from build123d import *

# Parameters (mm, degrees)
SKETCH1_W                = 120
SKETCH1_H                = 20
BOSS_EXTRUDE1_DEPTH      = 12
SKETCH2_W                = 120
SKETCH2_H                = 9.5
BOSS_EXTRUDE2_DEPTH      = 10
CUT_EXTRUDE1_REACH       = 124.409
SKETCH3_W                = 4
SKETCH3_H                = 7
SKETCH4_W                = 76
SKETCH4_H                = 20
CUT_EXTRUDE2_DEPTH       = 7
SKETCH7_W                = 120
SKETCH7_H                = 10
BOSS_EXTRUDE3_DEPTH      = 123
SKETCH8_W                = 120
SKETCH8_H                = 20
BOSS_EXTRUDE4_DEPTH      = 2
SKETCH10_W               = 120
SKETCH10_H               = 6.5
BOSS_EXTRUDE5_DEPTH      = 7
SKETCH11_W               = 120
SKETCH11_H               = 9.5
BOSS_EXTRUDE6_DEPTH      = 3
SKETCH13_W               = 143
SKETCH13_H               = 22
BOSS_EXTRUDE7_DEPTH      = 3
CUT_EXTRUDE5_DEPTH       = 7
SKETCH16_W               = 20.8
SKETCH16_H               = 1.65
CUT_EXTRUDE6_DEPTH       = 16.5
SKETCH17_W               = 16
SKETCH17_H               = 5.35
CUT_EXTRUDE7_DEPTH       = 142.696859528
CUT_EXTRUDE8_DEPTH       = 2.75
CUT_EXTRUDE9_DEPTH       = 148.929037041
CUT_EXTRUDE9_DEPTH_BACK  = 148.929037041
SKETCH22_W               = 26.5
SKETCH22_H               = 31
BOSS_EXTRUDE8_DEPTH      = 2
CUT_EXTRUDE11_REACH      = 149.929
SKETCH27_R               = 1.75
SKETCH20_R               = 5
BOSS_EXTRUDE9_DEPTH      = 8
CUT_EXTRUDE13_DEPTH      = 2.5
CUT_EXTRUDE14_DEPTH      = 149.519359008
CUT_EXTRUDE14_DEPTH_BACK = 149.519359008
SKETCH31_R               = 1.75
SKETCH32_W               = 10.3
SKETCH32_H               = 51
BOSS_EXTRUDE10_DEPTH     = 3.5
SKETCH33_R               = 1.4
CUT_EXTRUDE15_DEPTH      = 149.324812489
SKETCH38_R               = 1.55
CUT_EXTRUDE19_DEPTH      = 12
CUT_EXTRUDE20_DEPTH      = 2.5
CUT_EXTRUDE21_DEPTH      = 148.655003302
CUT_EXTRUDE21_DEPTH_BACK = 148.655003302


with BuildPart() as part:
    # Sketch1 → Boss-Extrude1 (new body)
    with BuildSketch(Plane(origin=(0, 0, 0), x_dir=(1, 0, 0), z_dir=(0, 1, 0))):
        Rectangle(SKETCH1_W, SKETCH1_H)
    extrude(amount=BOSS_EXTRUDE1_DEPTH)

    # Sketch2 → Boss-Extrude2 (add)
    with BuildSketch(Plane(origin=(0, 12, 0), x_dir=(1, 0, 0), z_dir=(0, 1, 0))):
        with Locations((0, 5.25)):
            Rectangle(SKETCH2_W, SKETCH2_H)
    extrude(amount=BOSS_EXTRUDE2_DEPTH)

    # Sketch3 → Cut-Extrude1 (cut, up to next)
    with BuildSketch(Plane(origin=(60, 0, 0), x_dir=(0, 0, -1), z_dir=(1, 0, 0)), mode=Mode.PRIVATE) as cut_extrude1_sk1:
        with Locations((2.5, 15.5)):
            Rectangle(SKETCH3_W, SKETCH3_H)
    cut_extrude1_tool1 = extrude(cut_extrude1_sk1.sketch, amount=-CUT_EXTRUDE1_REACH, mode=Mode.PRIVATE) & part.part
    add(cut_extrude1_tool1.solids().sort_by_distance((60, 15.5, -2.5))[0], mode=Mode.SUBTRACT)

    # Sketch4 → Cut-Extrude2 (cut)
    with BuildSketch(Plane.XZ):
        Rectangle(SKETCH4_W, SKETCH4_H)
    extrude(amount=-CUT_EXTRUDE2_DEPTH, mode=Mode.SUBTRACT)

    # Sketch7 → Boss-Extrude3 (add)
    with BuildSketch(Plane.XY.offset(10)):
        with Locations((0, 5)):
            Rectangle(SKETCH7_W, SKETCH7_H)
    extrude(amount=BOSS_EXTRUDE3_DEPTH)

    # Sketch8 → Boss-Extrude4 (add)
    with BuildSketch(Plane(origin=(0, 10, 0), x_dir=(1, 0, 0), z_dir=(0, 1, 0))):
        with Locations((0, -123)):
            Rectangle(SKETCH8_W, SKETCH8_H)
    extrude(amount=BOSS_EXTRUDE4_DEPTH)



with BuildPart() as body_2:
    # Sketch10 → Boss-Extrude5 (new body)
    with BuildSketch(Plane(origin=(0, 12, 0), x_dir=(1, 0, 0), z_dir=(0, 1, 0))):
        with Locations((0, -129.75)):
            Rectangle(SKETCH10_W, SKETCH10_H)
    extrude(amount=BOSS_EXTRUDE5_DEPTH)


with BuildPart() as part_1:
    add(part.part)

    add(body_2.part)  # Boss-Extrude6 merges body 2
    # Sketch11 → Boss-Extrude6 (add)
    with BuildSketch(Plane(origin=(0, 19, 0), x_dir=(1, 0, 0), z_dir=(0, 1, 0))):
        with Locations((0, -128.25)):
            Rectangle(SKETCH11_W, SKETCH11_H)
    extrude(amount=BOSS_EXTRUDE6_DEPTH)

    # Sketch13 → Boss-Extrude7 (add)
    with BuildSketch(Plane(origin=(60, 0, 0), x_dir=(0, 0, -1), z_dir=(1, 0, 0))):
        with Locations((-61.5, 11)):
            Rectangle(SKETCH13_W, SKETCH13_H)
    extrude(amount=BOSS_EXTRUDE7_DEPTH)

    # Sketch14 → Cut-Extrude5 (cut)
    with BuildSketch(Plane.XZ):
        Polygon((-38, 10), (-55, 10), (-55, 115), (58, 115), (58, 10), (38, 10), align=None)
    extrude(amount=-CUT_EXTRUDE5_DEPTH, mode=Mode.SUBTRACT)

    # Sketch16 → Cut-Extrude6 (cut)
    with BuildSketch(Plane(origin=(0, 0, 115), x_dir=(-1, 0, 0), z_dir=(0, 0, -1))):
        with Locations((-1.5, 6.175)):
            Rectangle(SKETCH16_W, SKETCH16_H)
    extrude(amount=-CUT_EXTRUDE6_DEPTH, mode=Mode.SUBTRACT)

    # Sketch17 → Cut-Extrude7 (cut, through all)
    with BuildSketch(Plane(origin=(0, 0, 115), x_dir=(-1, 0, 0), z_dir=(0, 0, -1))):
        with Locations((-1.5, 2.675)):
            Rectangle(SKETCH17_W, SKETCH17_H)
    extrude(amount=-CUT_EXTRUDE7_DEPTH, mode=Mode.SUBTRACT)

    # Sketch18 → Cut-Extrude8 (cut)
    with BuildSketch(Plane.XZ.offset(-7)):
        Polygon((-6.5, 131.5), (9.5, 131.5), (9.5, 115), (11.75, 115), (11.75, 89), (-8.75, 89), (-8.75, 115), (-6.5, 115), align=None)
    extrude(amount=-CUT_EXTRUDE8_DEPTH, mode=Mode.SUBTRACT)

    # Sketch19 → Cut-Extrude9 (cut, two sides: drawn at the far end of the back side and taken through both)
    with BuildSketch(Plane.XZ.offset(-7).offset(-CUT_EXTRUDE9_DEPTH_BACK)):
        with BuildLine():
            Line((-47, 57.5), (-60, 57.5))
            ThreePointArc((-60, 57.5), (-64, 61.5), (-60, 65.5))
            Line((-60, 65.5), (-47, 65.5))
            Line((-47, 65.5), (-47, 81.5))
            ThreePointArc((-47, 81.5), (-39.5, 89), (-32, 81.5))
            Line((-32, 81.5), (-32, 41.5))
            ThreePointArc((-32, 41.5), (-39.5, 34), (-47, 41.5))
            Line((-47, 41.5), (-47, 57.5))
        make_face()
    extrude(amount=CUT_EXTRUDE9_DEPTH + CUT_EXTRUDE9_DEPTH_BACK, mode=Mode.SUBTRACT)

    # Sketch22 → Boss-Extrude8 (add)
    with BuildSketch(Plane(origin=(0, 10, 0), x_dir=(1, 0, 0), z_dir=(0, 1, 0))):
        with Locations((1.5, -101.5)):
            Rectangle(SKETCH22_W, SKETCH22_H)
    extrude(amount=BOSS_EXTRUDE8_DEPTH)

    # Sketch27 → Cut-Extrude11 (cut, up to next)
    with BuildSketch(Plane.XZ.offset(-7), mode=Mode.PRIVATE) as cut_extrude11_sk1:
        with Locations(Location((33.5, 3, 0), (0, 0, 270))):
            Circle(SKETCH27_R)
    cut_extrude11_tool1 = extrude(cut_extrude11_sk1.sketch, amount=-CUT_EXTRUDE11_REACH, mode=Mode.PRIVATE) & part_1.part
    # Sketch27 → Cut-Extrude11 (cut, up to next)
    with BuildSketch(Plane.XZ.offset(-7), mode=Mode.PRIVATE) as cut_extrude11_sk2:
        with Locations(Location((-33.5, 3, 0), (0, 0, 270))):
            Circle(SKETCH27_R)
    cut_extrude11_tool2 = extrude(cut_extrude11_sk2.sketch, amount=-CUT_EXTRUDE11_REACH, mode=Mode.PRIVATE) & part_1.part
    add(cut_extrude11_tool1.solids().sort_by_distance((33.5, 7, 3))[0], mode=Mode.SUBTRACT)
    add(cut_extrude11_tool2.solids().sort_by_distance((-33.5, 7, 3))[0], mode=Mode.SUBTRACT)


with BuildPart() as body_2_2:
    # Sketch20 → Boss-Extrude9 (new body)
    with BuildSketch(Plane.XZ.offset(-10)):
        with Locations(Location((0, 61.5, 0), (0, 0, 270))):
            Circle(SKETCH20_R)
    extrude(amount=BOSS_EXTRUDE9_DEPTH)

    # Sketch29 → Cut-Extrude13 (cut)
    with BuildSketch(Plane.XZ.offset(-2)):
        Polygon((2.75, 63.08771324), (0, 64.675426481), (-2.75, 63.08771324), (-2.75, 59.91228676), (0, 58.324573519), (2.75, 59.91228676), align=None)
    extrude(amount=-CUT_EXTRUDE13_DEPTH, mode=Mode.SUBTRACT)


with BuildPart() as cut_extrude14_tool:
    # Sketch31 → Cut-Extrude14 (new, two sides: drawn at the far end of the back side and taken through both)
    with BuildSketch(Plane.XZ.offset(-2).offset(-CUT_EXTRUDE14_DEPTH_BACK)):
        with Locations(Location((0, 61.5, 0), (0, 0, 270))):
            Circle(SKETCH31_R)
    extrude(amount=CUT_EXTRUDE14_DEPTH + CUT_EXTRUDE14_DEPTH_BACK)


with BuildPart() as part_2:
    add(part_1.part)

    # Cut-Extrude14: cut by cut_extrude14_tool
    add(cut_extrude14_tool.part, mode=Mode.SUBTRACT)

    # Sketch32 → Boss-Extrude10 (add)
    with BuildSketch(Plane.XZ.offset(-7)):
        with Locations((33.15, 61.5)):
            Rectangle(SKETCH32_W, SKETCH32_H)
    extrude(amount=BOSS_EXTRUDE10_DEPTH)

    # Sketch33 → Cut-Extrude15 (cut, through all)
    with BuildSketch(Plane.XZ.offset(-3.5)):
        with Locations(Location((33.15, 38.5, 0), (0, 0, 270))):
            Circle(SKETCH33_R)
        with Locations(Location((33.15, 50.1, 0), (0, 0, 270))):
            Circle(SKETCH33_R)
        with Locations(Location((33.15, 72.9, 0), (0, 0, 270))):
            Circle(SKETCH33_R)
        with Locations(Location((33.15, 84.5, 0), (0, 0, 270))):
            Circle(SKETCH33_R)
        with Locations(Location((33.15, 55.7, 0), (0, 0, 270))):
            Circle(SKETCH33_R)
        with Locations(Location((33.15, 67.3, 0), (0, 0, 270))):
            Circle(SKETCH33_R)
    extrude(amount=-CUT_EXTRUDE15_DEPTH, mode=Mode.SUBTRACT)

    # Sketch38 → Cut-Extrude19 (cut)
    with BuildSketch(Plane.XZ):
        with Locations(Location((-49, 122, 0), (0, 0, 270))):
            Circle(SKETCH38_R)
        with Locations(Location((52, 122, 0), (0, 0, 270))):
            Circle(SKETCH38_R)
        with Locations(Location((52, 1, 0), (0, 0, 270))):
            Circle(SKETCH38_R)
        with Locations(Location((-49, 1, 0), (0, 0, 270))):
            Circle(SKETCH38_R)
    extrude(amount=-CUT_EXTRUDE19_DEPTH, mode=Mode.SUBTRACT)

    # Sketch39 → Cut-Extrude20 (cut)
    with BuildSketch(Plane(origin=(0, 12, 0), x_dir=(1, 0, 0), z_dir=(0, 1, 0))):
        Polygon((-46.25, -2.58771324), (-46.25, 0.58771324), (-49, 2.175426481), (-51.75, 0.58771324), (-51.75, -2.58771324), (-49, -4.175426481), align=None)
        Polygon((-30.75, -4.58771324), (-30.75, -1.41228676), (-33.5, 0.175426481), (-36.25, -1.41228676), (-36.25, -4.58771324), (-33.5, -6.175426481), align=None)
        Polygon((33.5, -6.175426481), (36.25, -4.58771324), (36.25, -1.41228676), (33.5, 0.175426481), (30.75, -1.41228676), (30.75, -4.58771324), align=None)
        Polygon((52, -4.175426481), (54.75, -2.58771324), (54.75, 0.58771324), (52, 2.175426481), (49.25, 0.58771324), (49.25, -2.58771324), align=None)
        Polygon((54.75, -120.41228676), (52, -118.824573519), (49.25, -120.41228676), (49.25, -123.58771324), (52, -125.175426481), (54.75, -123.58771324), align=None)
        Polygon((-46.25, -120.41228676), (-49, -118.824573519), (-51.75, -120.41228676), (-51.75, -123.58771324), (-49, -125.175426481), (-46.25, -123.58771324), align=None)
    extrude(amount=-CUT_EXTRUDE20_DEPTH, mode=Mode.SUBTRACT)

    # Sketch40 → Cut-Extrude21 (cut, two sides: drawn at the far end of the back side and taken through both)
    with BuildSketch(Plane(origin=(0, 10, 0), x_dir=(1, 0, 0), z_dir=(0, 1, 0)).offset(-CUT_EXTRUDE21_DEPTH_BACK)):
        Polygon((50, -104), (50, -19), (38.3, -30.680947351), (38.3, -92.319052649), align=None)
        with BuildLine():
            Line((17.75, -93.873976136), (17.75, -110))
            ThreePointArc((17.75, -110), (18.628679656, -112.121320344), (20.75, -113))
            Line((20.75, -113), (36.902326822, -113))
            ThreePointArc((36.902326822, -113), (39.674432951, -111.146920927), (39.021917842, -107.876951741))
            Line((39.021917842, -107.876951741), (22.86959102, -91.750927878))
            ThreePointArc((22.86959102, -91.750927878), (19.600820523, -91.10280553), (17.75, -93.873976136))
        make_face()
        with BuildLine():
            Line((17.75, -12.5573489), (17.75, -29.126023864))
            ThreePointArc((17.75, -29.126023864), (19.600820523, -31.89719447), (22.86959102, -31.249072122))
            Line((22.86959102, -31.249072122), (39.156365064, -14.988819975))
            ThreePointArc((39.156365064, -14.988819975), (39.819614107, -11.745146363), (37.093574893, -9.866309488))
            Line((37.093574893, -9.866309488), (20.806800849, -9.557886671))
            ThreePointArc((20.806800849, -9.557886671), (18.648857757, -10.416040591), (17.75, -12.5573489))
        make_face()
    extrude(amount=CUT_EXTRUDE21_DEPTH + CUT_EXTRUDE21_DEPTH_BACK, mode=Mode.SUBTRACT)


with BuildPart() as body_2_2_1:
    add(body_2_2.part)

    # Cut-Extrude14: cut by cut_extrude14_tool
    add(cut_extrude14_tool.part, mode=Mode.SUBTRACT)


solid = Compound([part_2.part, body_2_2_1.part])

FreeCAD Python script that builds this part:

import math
import FreeCAD as App
import Part
import Sketcher

V = App.Vector
Q = App.Units.Quantity


def add_polygon(sketch, points):
    """Adds a closed chain of lines whose ends are joined by coincident constraints."""
    first, n = sketch.GeometryCount, len(points)
    for a, b in zip(points, points[1:] + points[:1]):
        sketch.addGeometry(Part.LineSegment(App.Vector(*a, 0), App.Vector(*b, 0)), False)
    for i in range(n):
        sketch.addConstraint(Sketcher.Constraint("Coincident", first + i, 2, first + (i + 1) % n, 1))

doc = App.newDocument("Part")
params = doc.addObject("Spreadsheet::Sheet", "Params")
for row, (alias, value) in enumerate([
    ("sketch1_width", "120 mm"),
    ("sketch1_height", "20 mm"),
    ("pad1_length", "12 mm"),
    ("sketch2_width", "120 mm"),
    ("sketch2_height", "9.5 mm"),
    ("pad2_length", "10 mm"),
    ("sketch3_width", "7 mm"),
    ("sketch3_height", "4 mm"),
    ("sketch4_width", "76 mm"),
    ("sketch4_height", "20 mm"),
    ("pocket2_length", "7 mm"),
    ("sketch5_width", "120 mm"),
    ("sketch5_height", "10 mm"),
    ("pad3_length", "123 mm"),
    ("sketch6_width", "120 mm"),
    ("sketch6_height", "20 mm"),
    ("pad4_length", "2 mm"),
    ("sketch7_width", "120 mm"),
    ("sketch7_height", "6.5 mm"),
    ("pad5_length", "7 mm"),
    ("sketch8_width", "120 mm"),
    ("sketch8_height", "9.5 mm"),
    ("pad6_length", "3 mm"),
    ("sketch9_width", "22 mm"),
    ("sketch9_height", "143 mm"),
    ("pad7_length", "3 mm"),
    ("sketch10_width", "113 mm"),
    ("sketch10_height", "105 mm"),
    ("pocket3_length", "7 mm"),
    ("sketch11_width", "20.8 mm"),
    ("sketch11_height", "1.65 mm"),
    ("pocket4_length", "16.5 mm"),
    ("sketch12_width", "16 mm"),
    ("sketch12_height", "5.35 mm"),
    ("sketch13_width", "16 mm"),
    ("sketch13_height", "26 mm"),
    ("sketch13_width2", "20.5 mm"),
    ("sketch13_height2", "16.5 mm"),
    ("pocket6_length", "2.75 mm"),
    ("sketch14_radius", "4 mm"),
    ("sketch14_radius2", "7.5 mm"),
    ("sketch14_width", "13 mm"),
    ("sketch14_height", "16 mm"),
    ("sketch15_height", "31 mm"),
    ("sketch15_width", "26.5 mm"),
    ("pad8_length", "2 mm"),
    ("sketch16_diameter", "3.5 mm"),
    ("sketch17_diameter", "3.5 mm"),
    ("sketch18_diameter", "10 mm"),
    ("pad9_length", "8 mm"),
    ("pocket10_length", "2.5 mm"),
    ("sketch20_diameter", "3.5 mm"),
    ("pad10_length", "149.519359 mm"),
    ("pad10_length2", "149.519359 mm"),
    ("sketch21_height", "51 mm"),
    ("sketch21_width", "10.3 mm"),
    ("pad11_length", "3.5 mm"),
    ("sketch22_diameter", "2.8 mm"),
    ("sketch23_diameter", "3.1 mm"),
    ("pocket12_length", "12 mm"),
    ("pocket13_length", "2.5 mm"),
    ("sketch25_radius", "3 mm"),
    ("sketch25_height", "85 mm"),
], start=1):
    params.set(f"A{row}", alias)
    params.set(f"B{row}", "=" + value)
    params.setAlias(f"B{row}", alias)

body = doc.addObject("PartDesign::Body", "Body")

sketch1 = body.newObject("Sketcher::SketchObject", "Sketch")
sketch1.AttachmentSupport = (doc.getObject("XZ_Plane"), [""])
sketch1.MapMode = "FlatFace"
add_polygon(sketch1, [(-60, -10), (-60, 10), (60, 10), (60, -10)])
sketch1.addConstraint([
    Sketcher.Constraint("Vertical", 0),
    Sketcher.Constraint("Horizontal", 1),
    Sketcher.Constraint("Vertical", 2),
    Sketcher.Constraint("Horizontal", 3),
    Sketcher.Constraint("Symmetric", 0, 2, 2, 2, -1, 1),
    Sketcher.Constraint("DistanceX", 1, 1, 1, 2, 120.0),
    Sketcher.Constraint("DistanceY", 0, 1, 0, 2, 20.0),
])
sketch1.setExpression("Constraints[9]", "Params.sketch1_width")
sketch1.setExpression("Constraints[10]", "Params.sketch1_height")
pad1 = body.newObject("PartDesign::Pad", "Pad")
pad1.Profile = sketch1
pad1.setExpression("Length", "Params.pad1_length")
pad1.Reversed = True

sketch2 = body.newObject("Sketcher::SketchObject", "Sketch001")
sketch2.AttachmentSupport = (doc.getObject("XZ_Plane"), [""])
sketch2.MapMode = "FlatFace"
sketch2.AttachmentOffset = App.Placement(V(0, 0, -12), App.Rotation())
add_polygon(sketch2, [(-60, -10), (-60, -0.5), (60, -0.5), (60, -10)])
sketch2.addConstraint([
    Sketcher.Constraint("Vertical", 0),
    Sketcher.Constraint("Horizontal", 1),
    Sketcher.Constraint("Vertical", 2),
    Sketcher.Constraint("Horizontal", 3),
    Sketcher.Constraint("DistanceX", 1, 1, 1, 2, 120.0),
    Sketcher.Constraint("DistanceY", 0, 1, 0, 2, 9.5),
    Sketcher.Constraint("DistanceX", 0, 2, -1, 1, 60.0),
    Sketcher.Constraint("DistanceY", 2, 2, -1, 1, 10.0),
])
sketch2.setExpression("Constraints[8]", "Params.sketch2_width")
sketch2.setExpression("Constraints[9]", "Params.sketch2_height")
pad2 = body.newObject("PartDesign::Pad", "Pad001")
pad2.Profile = sketch2
pad2.setExpression("Length", "Params.pad2_length")
pad2.Reversed = True

sketch3 = body.newObject("Sketcher::SketchObject", "Sketch002")
sketch3.AttachmentSupport = (doc.getObject("YZ_Plane"), [""])
sketch3.MapMode = "FlatFace"
sketch3.AttachmentOffset = App.Placement(V(0, 0, 60), App.Rotation())
add_polygon(sketch3, [(19, -0.5), (12, -0.5), (12, -4.5), (19, -4.5)])
sketch3.addConstraint([
    Sketcher.Constraint("Horizontal", 0),
    Sketcher.Constraint("Vertical", 1),
    Sketcher.Constraint("Horizontal", 2),
    Sketcher.Constraint("Vertical", 3),
    Sketcher.Constraint("DistanceX", 0, 2, 0, 1, 7.0),
    Sketcher.Constraint("DistanceY", 1, 2, 1, 1, 4.0),
    Sketcher.Constraint("DistanceX", -1, 1, 0, 2, 12.0),
    Sketcher.Constraint("DistanceY", 0, 2, -1, 1, 0.5),
])
sketch3.setExpression("Constraints[8]", "Params.sketch3_width")
sketch3.setExpression("Constraints[9]", "Params.sketch3_height")
pocket1 = body.newObject("PartDesign::Pocket", "Pocket")
pocket1.Profile = sketch3
pocket1.Type = "UpToFirst"

sketch4 = body.newObject("Sketcher::SketchObject", "Sketch003")
sketch4.AttachmentSupport = (doc.getObject("XZ_Plane"), [""])
sketch4.MapMode = "FlatFace"
add_polygon(sketch4, [(-38, 10), (-38, -10), (38, -10), (38, 10)])
sketch4.addConstraint([
    Sketcher.Constraint("Vertical", 0),
    Sketcher.Constraint("Horizontal", 1),
    Sketcher.Constraint("Vertical", 2),
    Sketcher.Constraint("Horizontal", 3),
    Sketcher.Constraint("Symmetric", 0, 2, 2, 2, -1, 1),
    Sketcher.Constraint("DistanceX", 1, 1, 1, 2, 76.0),
    Sketcher.Constraint("DistanceY", 0, 2, 0, 1, 20.0),
])
sketch4.setExpression("Constraints[9]", "Params.sketch4_width")
sketch4.setExpression("Constraints[10]", "Params.sketch4_height")
pocket2 = body.newObject("PartDesign::Pocket", "Pocket001")
pocket2.Profile = sketch4
pocket2.setExpression("Length", "Params.pocket2_length")

sketch5 = body.newObject("Sketcher::SketchObject", "Sketch004")
sketch5.AttachmentSupport = (doc.getObject("XY_Plane"), [""])
sketch5.MapMode = "FlatFace"
sketch5.AttachmentOffset = App.Placement(V(0, 0, 10), App.Rotation())
add_polygon(sketch5, [(-60, 10), (-60, 0), (60, 0), (60, 10)])
sketch5.addConstraint([
    Sketcher.Constraint("Vertical", 0),
    Sketcher.Constraint("Horizontal", 1),
    Sketcher.Constraint("Vertical", 2),
    Sketcher.Constraint("Horizontal", 3),
    Sketcher.Constraint("Symmetric", 0, 2, 1, 2, -1, 1),
    Sketcher.Constraint("DistanceX", 1, 1, 1, 2, 120.0),
    Sketcher.Constraint("DistanceY", 0, 2, 0, 1, 10.0),
])
sketch5.setExpression("Constraints[9]", "Params.sketch5_width")
sketch5.setExpression("Constraints[10]", "Params.sketch5_height")
pad3 = body.newObject("PartDesign::Pad", "Pad002")
pad3.Profile = sketch5
pad3.setExpression("Length", "Params.pad3_length")

sketch6 = body.newObject("Sketcher::SketchObject", "Sketch005")
sketch6.AttachmentSupport = (doc.getObject("XZ_Plane"), [""])
sketch6.MapMode = "FlatFace"
sketch6.AttachmentOffset = App.Placement(V(0, 0, -10), App.Rotation())
add_polygon(sketch6, [(-60, 113), (-60, 133), (60, 133), (60, 113)])
sketch6.addConstraint([
    Sketcher.Constraint("Vertical", 0),
    Sketcher.Constraint("Horizontal", 1),
    Sketcher.Constraint("Vertical", 2),
    Sketcher.Constraint("Horizontal", 3),
    Sketcher.Constraint("DistanceX", 1, 1, 1, 2, 120.0),
    Sketcher.Constraint("DistanceY", 0, 1, 0, 2, 20.0),
    Sketcher.Constraint("DistanceX", 0, 2, -1, 1, 60.0),
    Sketcher.Constraint("DistanceY", -1, 1, 0, 2, 133.0),
])
sketch6.setExpression("Constraints[8]", "Params.sketch6_width")
sketch6.setExpression("Constraints[9]", "Params.sketch6_height")
pad4 = body.newObject("PartDesign::Pad", "Pad003")
pad4.Profile = sketch6
pad4.setExpression("Length", "Params.pad4_length")
pad4.Reversed = True
body2 = doc.addObject("PartDesign::Body", "Body001")

sketch7 = body2.newObject("Sketcher::SketchObject", "Sketch006")
sketch7.AttachmentSupport = (doc.getObject("XZ_Plane001"), [""])
sketch7.MapMode = "FlatFace"
sketch7.AttachmentOffset = App.Placement(V(0, 0, -12), App.Rotation())
add_polygon(sketch7, [(-60, 126.5), (-60, 133), (60, 133), (60, 126.5)])
sketch7.addConstraint([
    Sketcher.Constraint("Vertical", 0),
    Sketcher.Constraint("Horizontal", 1),
    Sketcher.Constraint("Vertical", 2),
    Sketcher.Constraint("Horizontal", 3),
    Sketcher.Constraint("DistanceX", 1, 1, 1, 2, 120.0),
    Sketcher.Constraint("DistanceY", 0, 1, 0, 2, 6.5),
    Sketcher.Constraint("DistanceX", 0, 2, -1, 1, 60.0),
    Sketcher.Constraint("DistanceY", -1, 1, 0, 2, 133.0),
])
sketch7.setExpression("Constraints[8]", "Params.sketch7_width")
sketch7.setExpression("Constraints[9]", "Params.sketch7_height")
pad5 = body2.newObject("PartDesign::Pad", "Pad004")
pad5.Profile = sketch7
pad5.setExpression("Length", "Params.pad5_length")
pad5.Reversed = True
doc.recompute()

boolean = body.newObject("PartDesign::Boolean", "Boolean")
boolean.Type = "Fuse"
boolean.addObjects([body2])

sketch8 = body.newObject("Sketcher::SketchObject", "Sketch007")
sketch8.AttachmentSupport = (doc.getObject("XZ_Plane"), [""])
sketch8.MapMode = "FlatFace"
sketch8.AttachmentOffset = App.Placement(V(0, 0, -19), App.Rotation())
add_polygon(sketch8, [(-60, 123.5), (-60, 133), (60, 133), (60, 123.5)])
sketch8.addConstraint([
    Sketcher.Constraint("Vertical", 0),
    Sketcher.Constraint("Horizontal", 1),
    Sketcher.Constraint("Vertical", 2),
    Sketcher.Constraint("Horizontal", 3),
    Sketcher.Constraint("DistanceX", 1, 1, 1, 2, 120.0),
    Sketcher.Constraint("DistanceY", 0, 1, 0, 2, 9.5),
    Sketcher.Constraint("DistanceX", 0, 2, -1, 1, 60.0),
    Sketcher.Constraint("DistanceY", -1, 1, 0, 2, 133.0),
])
sketch8.setExpression("Constraints[8]", "Params.sketch8_width")
sketch8.setExpression("Constraints[9]", "Params.sketch8_height")
pad6 = body.newObject("PartDesign::Pad", "Pad005")
pad6.Profile = sketch8
pad6.setExpression("Length", "Params.pad6_length")
pad6.Reversed = True

sketch9 = body.newObject("Sketcher::SketchObject", "Sketch008")
sketch9.AttachmentSupport = (doc.getObject("YZ_Plane"), [""])
sketch9.MapMode = "FlatFace"
sketch9.AttachmentOffset = App.Placement(V(0, 0, 60), App.Rotation())
add_polygon(sketch9, [(22, 133), (0, 133), (0, -10), (22, -10)])
sketch9.addConstraint([
    Sketcher.Constraint("Horizontal", 0),
    Sketcher.Constraint("Vertical", 1),
    Sketcher.Constraint("Horizontal", 2),
    Sketcher.Constraint("Vertical", 3),
    Sketcher.Constraint("PointOnObject", 0, 2, -2),
    Sketcher.Constraint("DistanceX", 0, 2, 0, 1, 22.0),
    Sketcher.Constraint("DistanceY", 1, 2, 1, 1, 143.0),
    Sketcher.Constraint("DistanceY", -1, 1, 0, 2, 133.0),
])
sketch9.setExpression("Constraints[9]", "Params.sketch9_width")
sketch9.setExpression("Constraints[10]", "Params.sketch9_height")
pad7 = body.newObject("PartDesign::Pad", "Pad006")
pad7.Profile = sketch9
pad7.setExpression("Length", "Params.pad7_length")

sketch10 = body.newObject("Sketcher::SketchObject", "Sketch009")
sketch10.AttachmentSupport = (doc.getObject("XZ_Plane"), [""])
sketch10.MapMode = "FlatFace"
add_polygon(sketch10, [(-55, 10), (58, 10), (58, 115), (-55, 115)])
sketch10.addConstraint([
    Sketcher.Constraint("Horizontal", 0),
    Sketcher.Constraint("Vertical", 1),
    Sketcher.Constraint("Horizontal", 2),
    Sketcher.Constraint("Vertical", 3),
    Sketcher.Constraint("DistanceX", 0, 1, 0, 2, 113.0),
    Sketcher.Constraint("DistanceY", 1, 1, 1, 2, 105.0),
    Sketcher.Constraint("DistanceX", -1, 1, 0, 2, 58.0),
    Sketcher.Constraint("DistanceY", -1, 1, 0, 2, 10.0),
])
sketch10.setExpression("Constraints[8]", "Params.sketch10_width")
sketch10.setExpression("Constraints[9]", "Params.sketch10_height")
pocket3 = body.newObject("PartDesign::Pocket", "Pocket002")
pocket3.Profile = sketch10
pocket3.setExpression("Length", "Params.pocket3_length")

sketch11 = body.newObject("Sketcher::SketchObject", "Sketch010")
sketch11.AttachmentSupport = (doc.getObject("XY_Plane"), [""])
sketch11.MapMode = "FlatFace"
sketch11.AttachmentOffset = App.Placement(V(0, 0, 115), App.Rotation())
add_polygon(sketch11, [(11.9, 7), (11.9, 5.35), (-8.9, 5.35), (-8.9, 7)])
sketch11.addConstraint([
    Sketcher.Constraint("Vertical", 0),
    Sketcher.Constraint("Horizontal", 1),
    Sketcher.Constraint("Vertical", 2),
    Sketcher.Constraint("Horizontal", 3),
    Sketcher.Constraint("DistanceX", 1, 2, 1, 1, 20.8),
    Sketcher.Constraint("DistanceY", -1, 1, 2, 2, 7.0),
    Sketcher.Constraint("DistanceY", 0, 2, 0, 1, 1.65),
    Sketcher.Constraint("DistanceX", -1, 1, 0, 2, 11.9),
])
sketch11.setExpression("Constraints[8]", "Params.sketch11_width")
sketch11.setExpression("Constraints[10]", "Params.sketch11_height")
pocket4 = body.newObject("PartDesign::Pocket", "Pocket003")
pocket4.Profile = sketch11
pocket4.setExpression("Length", "Params.pocket4_length")
pocket4.Reversed = True

sketch12 = body.newObject("Sketcher::SketchObject", "Sketch011")
sketch12.AttachmentSupport = (doc.getObject("XY_Plane"), [""])
sketch12.MapMode = "FlatFace"
sketch12.AttachmentOffset = App.Placement(V(0, 0, 115), App.Rotation())
add_polygon(sketch12, [(9.5, 5.35), (9.5, 0), (-6.5, 0), (-6.5, 5.35)])
sketch12.addConstraint([
    Sketcher.Constraint("Vertical", 0),
    Sketcher.Constraint("Horizontal", 1),
    Sketcher.Constraint("Vertical", 2),
    Sketcher.Constraint("Horizontal", 3),
    Sketcher.Constraint("PointOnObject", 0, 2, -1),
    Sketcher.Constraint("DistanceX", 1, 2, 1, 1, 16.0),
    Sketcher.Constraint("DistanceY", 0, 2, 0, 1, 5.35),
    Sketcher.Constraint("DistanceX", -1, 1, 0, 2, 9.5),
])
sketch12.setExpression("Constraints[9]", "Params.sketch12_width")
sketch12.setExpression("Constraints[10]", "Params.sketch12_height")
pocket5 = body.newObject("PartDesign::Pocket", "Pocket004")
pocket5.Profile = sketch12
pocket5.Type = "ThroughAll"
pocket5.Reversed = True

sketch13 = body.newObject("Sketcher::SketchObject", "Sketch012")
sketch13.AttachmentSupport = (doc.getObject("XZ_Plane"), [""])
sketch13.MapMode = "FlatFace"
sketch13.AttachmentOffset = App.Placement(V(0, 0, -7), App.Rotation())
add_polygon(sketch13, [(9.5, 131.5), (-6.5, 131.5), (-6.5, 115), (-8.75, 115), (-8.75, 89), (11.75, 89), (11.75, 115), (9.5, 115)])
sketch13.addConstraint([
    Sketcher.Constraint("Horizontal", 0),
    Sketcher.Constraint("Vertical", 1),
    Sketcher.Constraint("Horizontal", 2),
    Sketcher.Constraint("Vertical", 3),
    Sketcher.Constraint("Horizontal", 4),
    Sketcher.Constraint("Vertical", 5),
    Sketcher.Constraint("Horizontal", 6),
    Sketcher.Constraint("Vertical", 7),
    Sketcher.Constraint("Horizontal", 2, 2, 5, 2),
    Sketcher.Constraint("Equal", 2, 6),
    Sketcher.Constraint("DistanceX", 0, 2, 0, 1, 16.0),
    Sketcher.Constraint("DistanceY", 3, 2, 3, 1, 26.0),
    Sketcher.Constraint("DistanceX", 4, 1, 4, 2, 20.5),
    Sketcher.Constraint("DistanceY", 1, 2, 1, 1, 16.5),
    Sketcher.Constraint("DistanceY", -1, 1, 1, 2, 115.0),
    Sketcher.Constraint("DistanceX", 0, 2, -1, 1, 6.5),
])
sketch13.setExpression("Constraints[18]", "Params.sketch13_width")
sketch13.setExpression("Constraints[19]", "Params.sketch13_height")
sketch13.setExpression("Constraints[20]", "Params.sketch13_width2")
sketch13.setExpression("Constraints[21]", "Params.sketch13_height2")
pocket6 = body.newObject("PartDesign::Pocket", "Pocket005")
pocket6.Profile = sketch13
pocket6.setExpression("Length", "Params.pocket6_length")

sketch14 = body.newObject("Sketcher::SketchObject", "Sketch013")
sketch14.AttachmentSupport = (doc.getObject("XZ_Plane"), [""])
sketch14.MapMode = "FlatFace"
sketch14.AttachmentOffset = App.Placement(V(0, 0, -7), App.Rotation())
sketch14.addGeometry([
    Part.LineSegment(V(-60, 57.5, 0), V(-47, 57.5, 0)),
    Part.LineSegment(V(-47, 57.5, 0), V(-47, 41.5, 0)),
    Part.ArcOfCircle(Part.Circle(V(-39.5, 41.5, 0), V(0, 0, 1), 7.5), math.radians(180), math.radians(360)),
    Part.LineSegment(V(-32, 41.5, 0), V(-32, 81.5, 0)),
    Part.ArcOfCircle(Part.Circle(V(-39.5, 81.5, 0), V(0, 0, 1), 7.5), math.radians(0), math.radians(180)),
    Part.LineSegment(V(-47, 81.5, 0), V(-47, 65.5, 0)),
    Part.LineSegment(V(-47, 65.5, 0), V(-60, 65.5, 0)),
    Part.ArcOfCircle(Part.Circle(V(-60, 61.5, 0), V(0, 0, 1), 4), math.radians(90), math.radians(270)),
], False)
sketch14.addConstraint([
    Sketcher.Constraint("Coincident", 0, 2, 1, 1),
    Sketcher.Constraint("Tangent", 1, 2, 2, 1),
    Sketcher.Constraint("Tangent", 2, 2, 3, 1),
    Sketcher.Constraint("Tangent", 3, 2, 4, 1),
    Sketcher.Constraint("Tangent", 4, 2, 5, 1),
    Sketcher.Constraint("Coincident", 5, 2, 6, 1),
    Sketcher.Constraint("Tangent", 6, 2, 7, 1),
    Sketcher.Constraint("Tangent", 7, 2, 0, 1),
    Sketcher.Constraint("Horizontal", 0),
    Sketcher.Constraint("Vertical", 1),
    Sketcher.Constraint("Vertical", 3),
    Sketcher.Constraint("Vertical", 5),
    Sketcher.Constraint("Horizontal", 6),
    Sketcher.Constraint("Equal", 2, 4),
    Sketcher.Constraint("Equal", 1, 5),
    Sketcher.Constraint("Radius", 7, 4.0),
    Sketcher.Constraint("Radius", 2, 7.5),
    Sketcher.Constraint("DistanceX", 0, 1, 0, 2, 13.0),
    Sketcher.Constraint("DistanceY", 1, 2, 1, 1, 16.0),
    Sketcher.Constraint("DistanceX", 7, 3, -1, 1, 60.0),
    Sketcher.Constraint("DistanceY", -1, 1, 2, 3, 41.5),
])
sketch14.setExpression("Constraints[15]", "Params.sketch14_radius")
sketch14.setExpression("Constraints[16]", "Params.sketch14_radius2")
sketch14.setExpression("Constraints[17]", "Params.sketch14_width")
sketch14.setExpression("Constraints[18]", "Params.sketch14_height")
pocket7 = body.newObject("PartDesign::Pocket", "Pocket006")
pocket7.Profile = sketch14
pocket7.Type = "ThroughAll"
pocket7.Midplane = True

sketch15 = body.newObject("Sketcher::SketchObject", "Sketch014")
sketch15.AttachmentSupport = (doc.getObject("XZ_Plane"), [""])
sketch15.MapMode = "FlatFace"
sketch15.AttachmentOffset = App.Placement(V(0, 0, -10), App.Rotation())
add_polygon(sketch15, [(-11.75, 86), (-11.75, 117), (14.75, 117), (14.75, 86)])
sketch15.addConstraint([
    Sketcher.Constraint("Vertical", 0),
    Sketcher.Constraint("Horizontal", 1),
    Sketcher.Constraint("Vertical", 2),
    Sketcher.Constraint("Horizontal", 3),
    Sketcher.Constraint("DistanceY", 0, 1, 0, 2, 31.0),
    Sketcher.Constraint("DistanceX", 1, 1, 1, 2, 26.5),
    Sketcher.Constraint("DistanceY", -1, 1, 0, 2, 117.0),
    Sketcher.Constraint("DistanceX", 0, 2, -1, 1, 11.75),
])
sketch15.setExpression("Constraints[8]", "Params.sketch15_height")
sketch15.setExpression("Constraints[9]", "Params.sketch15_width")
pad8 = body.newObject("PartDesign::Pad", "Pad007")
pad8.Profile = sketch15
pad8.setExpression("Length", "Params.pad8_length")
pad8.Reversed = True

sketch16 = body.newObject("Sketcher::SketchObject", "Sketch015")
sketch16.AttachmentSupport = (doc.getObject("XZ_Plane"), [""])
sketch16.MapMode = "FlatFace"
sketch16.AttachmentOffset = App.Placement(V(0, 0, -7), App.Rotation())
sketch16.addGeometry(Part.Circle(V(33.5, 3, 0), V(0, 0, 1), 1.75), False)
sketch16.addConstraint([
    Sketcher.Constraint("Diameter", 0, 3.5),
    Sketcher.Constraint("DistanceY", -1, 1, 0, 3, 3.0),
    Sketcher.Constraint("DistanceX", -1, 1, 0, 3, 33.5),
])
sketch16.setExpression("Constraints[0]", "Params.sketch16_diameter")
pocket8 = body.newObject("PartDesign::Pocket", "Pocket007")
pocket8.Profile = sketch16
pocket8.Type = "UpToFirst"

sketch17 = body.newObject("Sketcher::SketchObject", "Sketch016")
sketch17.AttachmentSupport = (doc.getObject("XZ_Plane"), [""])
sketch17.MapMode = "FlatFace"
sketch17.AttachmentOffset = App.Placement(V(0, 0, -7), App.Rotation())
sketch17.addGeometry(Part.Circle(V(-33.5, 3, 0), V(0, 0, 1), 1.75), False)
sketch17.addConstraint([
    Sketcher.Constraint("Diameter", 0, 3.5),
    Sketcher.Constraint("DistanceY", -1, 1, 0, 3, 3.0),
    Sketcher.Constraint("DistanceX", 0, 3, -1, 1, 33.5),
])
sketch17.setExpression("Constraints[0]", "Params.sketch17_diameter")
pocket9 = body.newObject("PartDesign::Pocket", "Pocket008")
pocket9.Profile = sketch17
pocket9.Type = "UpToFirst"
body3 = doc.addObject("PartDesign::Body", "Body002")

sketch18 = body3.newObject("Sketcher::SketchObject", "Sketch017")
sketch18.AttachmentSupport = (doc.getObject("XZ_Plane002"), [""])
sketch18.MapMode = "FlatFace"
sketch18.AttachmentOffset = App.Placement(V(0, 0, -10), App.Rotation())
sketch18.addGeometry(Part.Circle(V(0, 61.5, 0), V(0, 0, 1), 5), False)
sketch18.addConstraint([
    Sketcher.Constraint("PointOnObject", 0, 3, -2),
    Sketcher.Constraint("Diameter", 0, 10.0),
    Sketcher.Constraint("DistanceY", -1, 1, 0, 3, 61.5),
])
sketch18.setExpression("Constraints[1]", "Params.sketch18_diameter")
pad9 = body3.newObject("PartDesign::Pad", "Pad008")
pad9.Profile = sketch18
pad9.setExpression("Length", "Params.pad9_length")

sketch19 = body3.newObject("Sketcher::SketchObject", "Sketch018")
sketch19.AttachmentSupport = (doc.getObject("XZ_Plane002"), [""])
sketch19.MapMode = "FlatFace"
sketch19.AttachmentOffset = App.Placement(V(0, 0, -2), App.Rotation())
add_polygon(sketch19, [(2.75, 63.087713), (0, 64.675426), (-2.75, 63.087713), (-2.75, 59.912287), (0, 58.324574), (2.75, 59.912287)])
sketch19.addConstraint([
    Sketcher.Constraint("Vertical", 2),
    Sketcher.Constraint("Vertical", 5),
    Sketcher.Constraint("Symmetric", 2, 2, 4, 2, -2),
    Sketcher.Constraint("PointOnObject", 0, 2, -2),
    Sketcher.Constraint("PointOnObject", 3, 2, -2),
    Sketcher.Constraint("Parallel", 0, 3),
    Sketcher.Constraint("Parallel", 1, 4),
    Sketcher.Constraint("Angle", 0, Q("150 deg")),
    Sketcher.Constraint("DistanceX", 2, 2, 4, 2, 5.5),
    Sketcher.Constraint("DistanceY", 2, 2, 2, 1, 3.175426),
    Sketcher.Constraint("DistanceY", -1, 1, 0, 2, 64.675426),
])
pocket10 = body3.newObject("PartDesign::Pocket", "Pocket009")
pocket10.Profile = sketch19
pocket10.setExpression("Length", "Params.pocket10_length")
body4 = doc.addObject("PartDesign::Body", "Body003")

sketch20 = body4.newObject("Sketcher::SketchObject", "Sketch019")
sketch20.AttachmentSupport = (doc.getObject("XZ_Plane003"), [""])
sketch20.MapMode = "FlatFace"
sketch20.AttachmentOffset = App.Placement(V(0, 0, -2), App.Rotation())
sketch20.addGeometry(Part.Circle(V(0, 61.5, 0), V(0, 0, 1), 1.75), False)
sketch20.addConstraint([
    Sketcher.Constraint("PointOnObject", 0, 3, -2),
    Sketcher.Constraint("Diameter", 0, 3.5),
    Sketcher.Constraint("DistanceY", -1, 1, 0, 3, 61.5),
])
sketch20.setExpression("Constraints[1]", "Params.sketch20_diameter")
pad10 = body4.newObject("PartDesign::Pad", "Pad009")
pad10.Profile = sketch20
pad10.Type = "TwoLengths"
pad10.setExpression("Length", "Params.pad10_length")
pad10.setExpression("Length2", "Params.pad10_length2")
doc.recompute()

body5 = doc.addObject("PartDesign::Body", "Body004")
body5.BaseFeature = body4
boolean2 = body.newObject("PartDesign::Boolean", "Boolean001")
boolean2.Type = "Cut"
boolean2.addObjects([body5])
doc.recompute()

sketch21 = body.newObject("Sketcher::SketchObject", "Sketch020")
sketch21.AttachmentSupport = (doc.getObject("XZ_Plane"), [""])
sketch21.MapMode = "FlatFace"
sketch21.AttachmentOffset = App.Placement(V(0, 0, -7), App.Rotation())
add_polygon(sketch21, [(28, 87), (28, 36), (38.3, 36), (38.3, 87)])
sketch21.addConstraint([
    Sketcher.Constraint("Vertical", 0),
    Sketcher.Constraint("Horizontal", 1),
    Sketcher.Constraint("Vertical", 2),
    Sketcher.Constraint("Horizontal", 3),
    Sketcher.Constraint("DistanceY", 0, 2, 0, 1, 51.0),
    Sketcher.Constraint("DistanceX", 1, 1, 1, 2, 10.3),
    Sketcher.Constraint("DistanceX", -1, 1, 0, 2, 28.0),
    Sketcher.Constraint("DistanceY", -1, 1, 0, 2, 36.0),
])
sketch21.setExpression("Constraints[8]", "Params.sketch21_height")
sketch21.setExpression("Constraints[9]", "Params.sketch21_width")
pad11 = body.newObject("PartDesign::Pad", "Pad010")
pad11.Profile = sketch21
pad11.setExpression("Length", "Params.pad11_length")

sketch22 = body.newObject("Sketcher::SketchObject", "Sketch021")
sketch22.AttachmentSupport = (doc.getObject("XZ_Plane"), [""])
sketch22.MapMode = "FlatFace"
sketch22.AttachmentOffset = App.Placement(V(0, 0, -3.5), App.Rotation())
sketch22.addGeometry([
    Part.Circle(V(33.15, 38.5, 0), V(0, 0, 1), 1.4),
    Part.Circle(V(33.15, 50.1, 0), V(0, 0, 1), 1.4),
    Part.Circle(V(33.15, 72.9, 0), V(0, 0, 1), 1.4),
    Part.Circle(V(33.15, 84.5, 0), V(0, 0, 1), 1.4),
    Part.Circle(V(33.15, 55.7, 0), V(0, 0, 1), 1.4),
    Part.Circle(V(33.15, 67.3, 0), V(0, 0, 1), 1.4),
], False)
sketch22.addConstraint([
    Sketcher.Constraint("Equal", 0, 1),
    Sketcher.Constraint("Equal", 1, 2),
    Sketcher.Constraint("Equal", 2, 3),
    Sketcher.Constraint("Equal", 3, 4),
    Sketcher.Constraint("Equal", 4, 5),
    Sketcher.Constraint("Vertical", 0, 3, 1, 3),
    Sketcher.Constraint("Vertical", 1, 3, 2, 3),
    Sketcher.Constraint("Vertical", 2, 3, 3, 3),
    Sketcher.Constraint("Vertical", 3, 3, 4, 3),
    Sketcher.Constraint("Vertical", 4, 3, 5, 3),
    Sketcher.Constraint("Diameter", 0, 2.8),
    Sketcher.Constraint("DistanceY", 0, 3, 3, 3, 46.0),
    Sketcher.Constraint("DistanceY", -1, 1, 0, 3, 38.5),
    Sketcher.Constraint("DistanceY", -1, 1, 1, 3, 50.1),
    Sketcher.Constraint("DistanceY", -1, 1, 2, 3, 72.9),
    Sketcher.Constraint("DistanceY", -1, 1, 4, 3, 55.7),
    Sketcher.Constraint("DistanceY", -1, 1, 5, 3, 67.3),
    Sketcher.Constraint("DistanceX", -1, 1, 0, 3, 33.15),
])
sketch22.setExpression("Constraints[10]", "Params.sketch22_diameter")
pocket11 = body.newObject("PartDesign::Pocket", "Pocket010")
pocket11.Profile = sketch22
pocket11.Type = "ThroughAll"

sketch23 = body.newObject("Sketcher::SketchObject", "Sketch022")
sketch23.AttachmentSupport = (doc.getObject("XZ_Plane"), [""])
sketch23.MapMode = "FlatFace"
sketch23.addGeometry([
    Part.Circle(V(-49, 122, 0), V(0, 0, 1), 1.55),
    Part.Circle(V(52, 122, 0), V(0, 0, 1), 1.55),
    Part.Circle(V(52, 1, 0), V(0, 0, 1), 1.55),
    Part.Circle(V(-49, 1, 0), V(0, 0, 1), 1.55),
], False)
sketch23.addConstraint([
    Sketcher.Constraint("Equal", 0, 1),
    Sketcher.Constraint("Equal", 1, 2),
    Sketcher.Constraint("Equal", 2, 3),
    Sketcher.Constraint("Horizontal", 0, 3, 1, 3),
    Sketcher.Constraint("Horizontal", 2, 3, 3, 3),
    Sketcher.Constraint("Vertical", 1, 3, 2, 3),
    Sketcher.Constraint("Vertical", 0, 3, 3, 3),
    Sketcher.Constraint("Diameter", 0, 3.1),
    Sketcher.Constraint("DistanceX", 0, 3, -1, 1, 49.0),
    Sketcher.Constraint("DistanceY", -1, 1, 0, 3, 122.0),
    Sketcher.Constraint("DistanceX", -1, 1, 1, 3, 52.0),
    Sketcher.Constraint("DistanceY", -1, 1, 2, 3, 1.0),
])
sketch23.setExpression("Constraints[7]", "Params.sketch23_diameter")
pocket12 = body.newObject("PartDesign::Pocket", "Pocket011")
pocket12.Profile = sketch23
pocket12.setExpression("Length", "Params.pocket12_length")

sketch24 = body.newObject("Sketcher::SketchObject", "Sketch023")
sketch24.AttachmentSupport = (doc.getObject("XZ_Plane"), [""])
sketch24.MapMode = "FlatFace"
sketch24.AttachmentOffset = App.Placement(V(0, 0, -12), App.Rotation())
add_polygon(sketch24, [(-46.25, 2.587713), (-46.25, -0.587713), (-49, -2.175426), (-51.75, -0.587713), (-51.75, 2.587713), (-49, 4.175426)])
add_polygon(sketch24, [(-30.75, 4.587713), (-30.75, 1.412287), (-33.5, -0.175426), (-36.25, 1.412287), (-36.25, 4.587713), (-33.5, 6.175426)])
add_polygon(sketch24, [(33.5, 6.175426), (36.25, 4.587713), (36.25, 1.412287), (33.5, -0.175426), (30.75, 1.412287), (30.75, 4.587713)])
add_polygon(sketch24, [(52, 4.175426), (54.75, 2.587713), (54.75, -0.587713), (52, -2.175426), (49.25, -0.587713), (49.25, 2.587713)])
add_polygon(sketch24, [(54.75, 120.412287), (52, 118.824574), (49.25, 120.412287), (49.25, 123.587713), (52, 125.175426), (54.75, 123.587713)])
add_polygon(sketch24, [(-46.25, 120.412287), (-49, 118.824574), (-51.75, 120.412287), (-51.75, 123.587713), (-49, 125.175426), (-46.25, 123.587713)])
sketch24.addConstraint([
    Sketcher.Constraint("Vertical", 0),
    Sketcher.Constraint("Vertical", 3),
    Sketcher.Constraint("Vertical", 6),
    Sketcher.Constraint("Vertical", 9),
    Sketcher.Constraint("Vertical", 13),
    Sketcher.Constraint("Vertical", 16),
    Sketcher.Constraint("Vertical", 19),
    Sketcher.Constraint("Vertical", 22),
    Sketcher.Constraint("Vertical", 26),
    Sketcher.Constraint("Vertical", 29),
    Sketcher.Constraint("Vertical", 32),
    Sketcher.Constraint("Vertical", 35),
    Sketcher.Constraint("Symmetric", 9, 2, 12, 2, -2),
    Sketcher.Constraint("Symmetric", 7, 2, 14, 2, -2),
    Sketcher.Constraint("Symmetric", 6, 2, 15, 2, -2),
    Sketcher.Constraint("Symmetric", 10, 2, 17, 2, -2),
    Sketcher.Constraint("Parallel", 1, 4),
    Sketcher.Constraint("Parallel", 2, 5),
    Sketcher.Constraint("Parallel", 4, 7),
    Sketcher.Constraint("Parallel", 5, 8),
    Sketcher.Constraint("Parallel", 7, 10),
    Sketcher.Constraint("Parallel", 8, 11),
    Sketcher.Constraint("Parallel", 11, 12),
    Sketcher.Constraint("Parallel", 10, 14),
    Sketcher.Constraint("Parallel", 14, 17),
    Sketcher.Constraint("Parallel", 15, 18),
    Sketcher.Constraint("Parallel", 17, 20),
    Sketcher.Constraint("Parallel", 18, 21),
    Sketcher.Constraint("Parallel", 20, 23),
    Sketcher.Constraint("Parallel", 23, 24),
    Sketcher.Constraint("Parallel", 21, 25),
    Sketcher.Constraint("Parallel", 24, 27),
    Sketcher.Constraint("Parallel", 25, 28),
    Sketcher.Constraint("Parallel", 27, 30),
    Sketcher.Constraint("Parallel", 28, 31),
    Sketcher.Constraint("Parallel", 30, 33),
    Sketcher.Constraint("Parallel", 31, 34),
    Sketcher.Constraint("Horizontal", 0, 2, 2, 2),
    Sketcher.Constraint("Horizontal", 3, 2, 5, 2),
    Sketcher.Constraint("Horizontal", 6, 2, 8, 2),
    Sketcher.Constraint("Horizontal", 9, 2, 11, 2),
    Sketcher.Constraint("Horizontal", 5, 2, 18, 2),
    Sketcher.Constraint("Horizontal", 2, 2, 19, 2),
    Sketcher.Constraint("Horizontal", 1, 2, 20, 2),
    Sketcher.Constraint("Horizontal", 19, 2, 21, 2),
    Sketcher.Constraint("Horizontal", 18, 2, 22, 2),
    Sketcher.Constraint("Horizontal", 26, 2, 28, 2),
    Sketcher.Constraint("Horizontal", 25, 2, 29, 2),
    Sketcher.Constraint("Horizontal", 24, 2, 30, 2),
    Sketcher.Constraint("Horizontal", 29, 2, 31, 2),
    Sketcher.Constraint("Horizontal", 28, 2, 32, 2),
    Sketcher.Constraint("Horizontal", 27, 2, 33, 2),
    Sketcher.Constraint("Horizontal", 32, 2, 34, 2),
    Sketcher.Constraint("Vertical", 23, 2, 24, 2),
    Sketcher.Constraint("Vertical", 22, 2, 25, 2),
    Sketcher.Constraint("Vertical", 4, 2, 30, 2),
    Sketcher.Constraint("Equal", 3, 6),
    Sketcher.Constraint("Equal", 22, 26),
    Sketcher.Constraint("Equal", 5, 7),
    Sketcher.Constraint("Angle", 1, Q("-150 deg")),
    Sketcher.Constraint("DistanceX", 1, 2, -1, 1, 49.0),
    Sketcher.Constraint("DistanceX", -1, 1, 20, 2, 52.0),
    Sketcher.Constraint("DistanceY", 0, 2, 6, 2, 2.0),
    Sketcher.Constraint("DistanceX", 3, 2, 6, 2, 21.0),
    Sketcher.Constraint("DistanceX", 5, 2, 8, 2, 10.0),
    Sketcher.Constraint("DistanceY", 12, 2, 26, 2, 119.0),
    Sketcher.Constraint("DistanceY", 0, 2, 0, 1, 3.175426),
    Sketcher.Constraint("DistanceY", 0, 2, -1, 1, 0.587713),
])
pocket13 = body.newObject("PartDesign::Pocket", "Pocket012")
pocket13.Profile = sketch24
pocket13.setExpression("Length", "Params.pocket13_length")
pocket13.Reversed = True

sketch25 = body.newObject("Sketcher::SketchObject", "Sketch024")
sketch25.AttachmentSupport = (doc.getObject("XZ_Plane"), [""])
sketch25.MapMode = "FlatFace"
sketch25.AttachmentOffset = App.Placement(V(0, 0, -10), App.Rotation())
add_polygon(sketch25, [(50, 104), (50, 19), (38.3, 30.680947), (38.3, 92.319053)])
sketch25.addGeometry(Part.LineSegment(V(17.75, 93.873976, 0), V(17.75, 110, 0)), False)
sketch25.addGeometry(Part.ArcOfCircle(Part.Circle(V(20.75, 110, 0), V(0, 0, 1), 3), math.radians(90), math.radians(180)), False)
sketch25.addGeometry(Part.LineSegment(V(20.75, 113, 0), V(36.902327, 113, 0)), False)
sketch25.addGeometry(Part.ArcOfCircle(Part.Circle(V(36.902327, 110, 0), V(0, 0, 1), 3), math.radians(-45.046689), math.radians(90)), False)
sketch25.addGeometry(Part.LineSegment(V(39.021918, 107.876952, 0), V(22.869591, 91.750928, 0)), False)
sketch25.addGeometry(Part.ArcOfCircle(Part.Circle(V(20.75, 93.873976, 0), V(0, 0, 1), 3), math.radians(180), math.radians(314.953311)), False)
sketch25.addGeometry(Part.LineSegment(V(17.75, 12.557349, 0), V(17.75, 29.126024, 0)), False)
sketch25.addGeometry(Part.ArcOfCircle(Part.Circle(V(20.75, 29.126024, 0), V(0, 0, 1), 3), math.radians(45.046689), math.radians(180)), False)
sketch25.addGeometry(Part.LineSegment(V(22.869591, 31.249072, 0), V(39.156365, 14.98882, 0)), False)
sketch25.addGeometry(Part.ArcOfCircle(Part.Circle(V(37.036774, 12.865772, 0), V(0, 0, 1), 3), math.radians(-88.915119), math.radians(45.046689)), False)
sketch25.addGeometry(Part.LineSegment(V(37.093575, 9.866309, 0), V(20.806801, 9.557887, 0)), False)
sketch25.addGeometry(Part.ArcOfCircle(Part.Circle(V(20.75, 12.557349, 0), V(0, 0, 1), 3), math.radians(180), math.radians(271.084881)), False)
sketch25.addConstraint([
    Sketcher.Constraint("Tangent", 4, 2, 5, 2),
    Sketcher.Constraint("Tangent", 5, 1, 6, 1),
    Sketcher.Constraint("Tangent", 6, 2, 7, 2),
    Sketcher.Constraint("Tangent", 7, 1, 8, 1),
    Sketcher.Constraint("Tangent", 8, 2, 9, 2),
    Sketcher.Constraint("Tangent", 9, 1, 4, 1),
    Sketcher.Constraint("Tangent", 10, 2, 11, 2),
    Sketcher.Constraint("Tangent", 11, 1, 12, 1),
    Sketcher.Constraint("Tangent", 12, 2, 13, 2),
    Sketcher.Constraint("Tangent", 13, 1, 14, 1),
    Sketcher.Constraint("Tangent", 14, 2, 15, 2),
    Sketcher.Constraint("Tangent", 15, 1, 10, 1),
    Sketcher.Constraint("Vertical", 0),
    Sketcher.Constraint("Vertical", 2),
    Sketcher.Constraint("Vertical", 4),
    Sketcher.Constraint("Horizontal", 6),
    Sketcher.Constraint("Vertical", 10),
    Sketcher.Constraint("Equal", 5, 7),
    Sketcher.Constraint("Equal", 7, 9),
    Sketcher.Constraint("Equal", 9, 11),
    Sketcher.Constraint("Equal", 11, 13),
    Sketcher.Constraint("Equal", 13, 15),
    Sketcher.Constraint("Parallel", 3, 8),
    Sketcher.Constraint("Parallel", 1, 12),
    Sketcher.Constraint("Vertical", 9, 3, 11, 3),
    Sketcher.Constraint("Vertical", 8, 2, 11, 1),
    Sketcher.Constraint("Radius", 5, 3.0),
    Sketcher.Constraint("DistanceY", 0, 2, 0, 1, 85.0),
    Sketcher.Constraint("DistanceY", -1, 1, 5, 3, 110.0),
    Sketcher.Constraint("DistanceX", -1, 1, 0, 2, 50.0),
    Sketcher.Constraint("DistanceY", -1, 1, 0, 2, 19.0),
    Sketcher.Constraint("DistanceX", -1, 1, 1, 2, 38.3),
    Sketcher.Constraint("DistanceX", -1, 1, 5, 3, 20.75),
    Sketcher.Constraint("DistanceX", -1, 1, 14, 2, 20.806801),
    Sketcher.Constraint("DistanceY", 15, 3, 1, 2, 18.123598),
    Sketcher.Constraint("DistanceY", 2, 2, 7, 1, 15.557899),
    Sketcher.Constraint("DistanceY", 13, 3, 11, 1, 18.3833),
    Sketcher.Constraint("Distance", 8, 22.824248),
])
sketch25.setExpression("Constraints[30]", "Params.sketch25_radius")
sketch25.setExpression("Constraints[31]", "Params.sketch25_height")
pocket14 = body.newObject("PartDesign::Pocket", "Pocket013")
pocket14.Profile = sketch25
pocket14.Type = "ThroughAll"
pocket14.Midplane = True
doc.recompute()

boolean3 = body3.newObject("PartDesign::Boolean", "Boolean002")
boolean3.Type = "Cut"
boolean3.addObjects([body4])

doc.recompute()
